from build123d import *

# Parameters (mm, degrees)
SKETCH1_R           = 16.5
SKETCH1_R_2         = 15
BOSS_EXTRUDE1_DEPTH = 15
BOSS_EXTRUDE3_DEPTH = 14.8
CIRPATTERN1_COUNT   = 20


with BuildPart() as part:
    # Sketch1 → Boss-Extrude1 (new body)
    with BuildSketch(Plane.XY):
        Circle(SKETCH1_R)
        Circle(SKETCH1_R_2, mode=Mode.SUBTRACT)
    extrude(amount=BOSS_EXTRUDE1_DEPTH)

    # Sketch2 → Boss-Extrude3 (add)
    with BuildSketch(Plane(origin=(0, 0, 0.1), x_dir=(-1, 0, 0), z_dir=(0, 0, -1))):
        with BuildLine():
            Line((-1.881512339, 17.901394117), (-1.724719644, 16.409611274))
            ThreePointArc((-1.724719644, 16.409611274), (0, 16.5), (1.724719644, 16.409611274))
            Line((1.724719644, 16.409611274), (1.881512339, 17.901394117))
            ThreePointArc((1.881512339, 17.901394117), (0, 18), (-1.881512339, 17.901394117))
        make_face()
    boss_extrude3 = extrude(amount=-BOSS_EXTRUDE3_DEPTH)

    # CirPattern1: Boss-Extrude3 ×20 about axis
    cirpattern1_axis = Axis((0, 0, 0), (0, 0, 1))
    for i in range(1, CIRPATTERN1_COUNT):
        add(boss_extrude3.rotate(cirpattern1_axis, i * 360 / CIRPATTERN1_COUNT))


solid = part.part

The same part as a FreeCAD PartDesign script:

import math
import FreeCAD as App
import Part
import Sketcher

V = App.Vector
Q = App.Units.Quantity

doc = App.newDocument("Part")
params = doc.addObject("Spreadsheet::Sheet", "Params")
for row, (alias, value) in enumerate([
    ("sketch1_diameter", "33 mm"),
    ("sketch1_diameter2", "30 mm"),
    ("pad1_length", "15 mm"),
    ("sketch2_radius", "18 mm"),
    ("sketch2_radius2", "16.5 mm"),
    ("pad2_length", "14.8 mm"),
], start=1):
    params.set(f"A{row}", alias)
    params.set(f"B{row}", "=" + value)
    params.setAlias(f"B{row}", alias)

body = doc.addObject("PartDesign::Body", "Body")

sketch1 = body.newObject("Sketcher::SketchObject", "Sketch")
sketch1.AttachmentSupport = (doc.getObject("XY_Plane"), [""])
sketch1.MapMode = "FlatFace"
sketch1.addGeometry(Part.Circle(V(0, 0, 0), V(0, 0, 1), 16.5), False)
sketch1.addGeometry(Part.Circle(V(0, 0, 0), V(0, 0, 1), 15), False)
sketch1.addConstraint(Sketcher.Constraint("Coincident", 0, 3, -1, 1))
sketch1.addConstraint(Sketcher.Constraint("Coincident", 1, 3, -1, 1))
sketch1.addConstraint(Sketcher.Constraint("Diameter", 0, 33.0))
sketch1.addConstraint(Sketcher.Constraint("Diameter", 1, 30.0))
sketch1.setExpression("Constraints[2]", "Params.sketch1_diameter")
sketch1.setExpression("Constraints[3]", "Params.sketch1_diameter2")
pad1 = body.newObject("PartDesign::Pad", "Pad")
pad1.Profile = sketch1
pad1.setExpression("Length", "Params.pad1_length")

sketch2 = body.newObject("Sketcher::SketchObject", "Sketch001")
sketch2.AttachmentSupport = (doc.getObject("XY_Plane"), [""])
sketch2.MapMode = "FlatFace"
sketch2.AttachmentOffset = App.Placement(V(0, 0, 0.1), App.Rotation())
sketch2.addGeometry(Part.LineSegment(V(1.881512, 17.901394, 0), V(1.72472, 16.409611, 0)), False)
sketch2.addGeometry(Part.ArcOfCircle(Part.Circle(V(0, 0, 0), V(0, 0, 1), 16.5), math.radians(84), math.radians(96)), False)
sketch2.addGeometry(Part.LineSegment(V(-1.72472, 16.409611, 0), V(-1.881512, 17.901394, 0)), False)
sketch2.addGeometry(Part.ArcOfCircle(Part.Circle(V(0, 0, 0), V(0, 0, 1), 18), math.radians(84), math.radians(96)), False)
sketch2.addConstraint(Sketcher.Constraint("Coincident", 0, 2, 1, 1))
sketch2.addConstraint(Sketcher.Constraint("Coincident", 1, 2, 2, 1))
sketch2.addConstraint(Sketcher.Constraint("Coincident", 2, 2, 3, 2))
sketch2.addConstraint(Sketcher.Constraint("Coincident", 3, 1, 0, 1))
sketch2.addConstraint(Sketcher.Constraint("Coincident", 1, 3, -1, 1))
sketch2.addConstraint(Sketcher.Constraint("Coincident", 3, 3, -1, 1))
sketch2.addConstraint(Sketcher.Constraint("Horizontal", 0, 2, 1, 2))
sketch2.addConstraint(Sketcher.Constraint("Horizontal", 2, 2, 3, 1))
sketch2.addConstraint(Sketcher.Constraint("Radius", 3, 18.0))
sketch2.addConstraint(Sketcher.Constraint("Radius", 1, 16.5))
sketch2.addConstraint(Sketcher.Constraint("Angle", 0, Q("-96 deg")))
sketch2.addConstraint(Sketcher.Constraint("DistanceX", -1, 1, 0, 2, 1.72472))
sketch2.setExpression("Constraints[8]", "Params.sketch2_radius")
sketch2.setExpression("Constraints[9]", "Params.sketch2_radius2")
pad2 = body.newObject("PartDesign::Pad", "Pad001")
pad2.Profile = sketch2
pad2.setExpression("Length", "Params.pad2_length")
doc.recompute()

polarpattern = body.newObject("PartDesign::PolarPattern", "PolarPattern")
polarpattern.Originals = [pad2]
polarpattern.Axis = (doc.getObject("Z_Axis"), [""])
polarpattern.Angle = 360
polarpattern.Occurrences = 20
body.Tip = polarpattern

doc.recompute()
